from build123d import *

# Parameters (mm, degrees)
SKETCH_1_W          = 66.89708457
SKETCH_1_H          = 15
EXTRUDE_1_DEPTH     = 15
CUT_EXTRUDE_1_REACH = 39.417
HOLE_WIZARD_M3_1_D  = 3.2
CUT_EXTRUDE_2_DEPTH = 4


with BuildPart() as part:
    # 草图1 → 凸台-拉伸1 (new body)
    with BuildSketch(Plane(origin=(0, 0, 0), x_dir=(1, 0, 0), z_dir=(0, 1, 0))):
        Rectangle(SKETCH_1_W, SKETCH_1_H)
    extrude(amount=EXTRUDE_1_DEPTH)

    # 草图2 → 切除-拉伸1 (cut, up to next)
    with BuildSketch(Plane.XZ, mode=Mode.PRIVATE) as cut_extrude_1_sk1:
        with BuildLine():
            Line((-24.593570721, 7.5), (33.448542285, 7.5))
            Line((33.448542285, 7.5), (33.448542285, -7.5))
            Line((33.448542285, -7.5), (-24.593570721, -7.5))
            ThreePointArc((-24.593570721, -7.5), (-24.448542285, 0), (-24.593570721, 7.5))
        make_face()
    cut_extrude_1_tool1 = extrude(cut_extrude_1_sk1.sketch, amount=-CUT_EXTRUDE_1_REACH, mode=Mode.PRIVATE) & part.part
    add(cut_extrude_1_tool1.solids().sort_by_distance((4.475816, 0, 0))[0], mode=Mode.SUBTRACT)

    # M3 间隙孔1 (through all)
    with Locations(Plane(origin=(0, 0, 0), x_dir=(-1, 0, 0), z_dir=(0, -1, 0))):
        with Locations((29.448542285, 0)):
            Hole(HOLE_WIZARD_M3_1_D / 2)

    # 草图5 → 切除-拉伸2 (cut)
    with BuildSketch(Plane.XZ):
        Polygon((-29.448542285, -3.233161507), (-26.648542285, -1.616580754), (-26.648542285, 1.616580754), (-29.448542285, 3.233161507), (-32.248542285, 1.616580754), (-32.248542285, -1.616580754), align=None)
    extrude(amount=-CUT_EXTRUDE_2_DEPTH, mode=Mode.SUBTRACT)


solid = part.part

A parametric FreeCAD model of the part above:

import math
import FreeCAD as App
import Part
import Sketcher
Q = App.Units.Quantity


def add_polygon(sketch, points):
    """Adds a closed chain of lines whose ends are joined by coincident constraints."""
    first, n = sketch.GeometryCount, len(points)
    for a, b in zip(points, points[1:] + points[:1]):
        sketch.addGeometry(Part.LineSegment(App.Vector(*a, 0), App.Vector(*b, 0)), False)
    for i in range(n):
        sketch.addConstraint(Sketcher.Constraint("Coincident", first + i, 2, first + (i + 1) % n, 1))

doc = App.newDocument("Part")
body = doc.addObject("PartDesign::Body", "Body")

# Sketch on XZ plane
sketch1 = body.newObject("Sketcher::SketchObject", "Sketch")
sketch1.AttachmentSupport = (doc.getObject("XZ_Plane"), [""])
sketch1.MapMode = "FlatFace"
add_polygon(sketch1, [(-33, -8), (-33, 8), (33, 8), (33, -8)])  # lines 0-3
sketch1.addConstraint(Sketcher.Constraint("Vertical", 0))
sketch1.addConstraint(Sketcher.Constraint("Horizontal", 1))
sketch1.addConstraint(Sketcher.Constraint("Vertical", 2))
sketch1.addConstraint(Sketcher.Constraint("Horizontal", 3))
sketch1.addConstraint(Sketcher.Constraint("Symmetric", 0, 2, 2, 2, -1, 1))
sketch1.addConstraint(Sketcher.Constraint("DistanceY", 0, 1, 0, 2, 15.0))
sketch1.addConstraint(Sketcher.Constraint("DistanceX", 1, 1, 1, 2, 66.897085))
pad1 = body.newObject("PartDesign::Pad", "Pad")
pad1.Profile = sketch1
pad1.Length = 15
pad1.Reversed = True

# Sketch on XZ plane
sketch2 = body.newObject("Sketcher::SketchObject", "Sketch001")
sketch2.AttachmentSupport = (doc.getObject("XZ_Plane"), [""])
sketch2.MapMode = "FlatFace"
sketch2.addGeometry(Part.LineSegment(App.Vector(33, 8, 0), App.Vector(-25, 8, 0)), False)
sketch2.addGeometry(Part.ArcOfCircle(Part.Circle(App.Vector(-218, 0, 0), App.Vector(0, 0, 1), 194), math.radians(-2.22), math.radians(2.22)), False)
sketch2.addGeometry(Part.LineSegment(App.Vector(-25, -8, 0), App.Vector(33, -8, 0)), False)
sketch2.addGeometry(Part.LineSegment(App.Vector(33, -8, 0), App.Vector(33, 8, 0)), False)
sketch2.addConstraint(Sketcher.Constraint("Coincident", 0, 2, 1, 2))
sketch2.addConstraint(Sketcher.Constraint("Coincident", 1, 1, 2, 1))
sketch2.addConstraint(Sketcher.Constraint("Coincident", 2, 2, 3, 1))
sketch2.addConstraint(Sketcher.Constraint("Coincident", 3, 2, 0, 1))
sketch2.addConstraint(Sketcher.Constraint("Horizontal", 0))
sketch2.addConstraint(Sketcher.Constraint("Horizontal", 2))
sketch2.addConstraint(Sketcher.Constraint("Vertical", 3))
sketch2.addConstraint(Sketcher.Constraint("Symmetric", 0, 2, 1, 1, -1))
sketch2.addConstraint(Sketcher.Constraint("Radius", 1, 194.0))
sketch2.addConstraint(Sketcher.Constraint("DistanceY", 3, 1, 3, 2, 15.0))
sketch2.addConstraint(Sketcher.Constraint("DistanceX", 0, 2, 0, 1, 58.042113))
sketch2.addConstraint(Sketcher.Constraint("DistanceX", 0, 2, -1, 1, 24.593571))
pocket1 = body.newObject("PartDesign::Pocket", "Pocket")
pocket1.Profile = sketch2
pocket1.Type = "UpToFirst"

# Sketch on XZ plane
sketch3 = body.newObject("Sketcher::SketchObject", "Sketch002")
sketch3.AttachmentSupport = (doc.getObject("XZ_Plane"), [""])
sketch3.MapMode = "FlatFace"
sketch3.addGeometry(Part.Circle(App.Vector(-29.4, 0, 0), App.Vector(0, 0, 1), 1.6), False)
sketch3.addConstraint(Sketcher.Constraint("PointOnObject", 0, 3, -1))
sketch3.addConstraint(Sketcher.Constraint("Diameter", 0, 3.2))
sketch3.addConstraint(Sketcher.Constraint("DistanceX", 0, 3, -1, 1, 29.448542))
doc.recompute()
hole = body.newObject("PartDesign::Hole", "Hole")
hole.Profile = sketch3
hole.ThreadType = "None"
hole.Diameter = 3.2
hole.DepthType = "ThroughAll"

# Sketch on XZ plane
sketch4 = body.newObject("Sketcher::SketchObject", "Sketch003")
sketch4.AttachmentSupport = (doc.getObject("XZ_Plane"), [""])
sketch4.MapMode = "FlatFace"
add_polygon(sketch4, [(-29.4, -3.2), (-26.6, -1.6), (-26.6, 1.6), (-29.4, 3.2), (-32.2, 1.6), (-32.2, -1.6)])  # lines 0-5
sketch4.addConstraint(Sketcher.Constraint("Vertical", 1))
sketch4.addConstraint(Sketcher.Constraint("Vertical", 4))
sketch4.addConstraint(Sketcher.Constraint("Symmetric", 2, 2, 5, 2, -1))
sketch4.addConstraint(Sketcher.Constraint("Parallel", 0, 3))
sketch4.addConstraint(Sketcher.Constraint("Parallel", 2, 5))
sketch4.addConstraint(Sketcher.Constraint("Horizontal", 1, 2, 3, 2))
sketch4.addConstraint(Sketcher.Constraint("Horizontal", 0, 2, 4, 2))
sketch4.addConstraint(Sketcher.Constraint("Angle", 0, Q("30 deg")))
sketch4.addConstraint(Sketcher.Constraint("DistanceX", 2, 2, 1, 2, 2.8))
sketch4.addConstraint(Sketcher.Constraint("DistanceY", 1, 1, 1, 2, 3.233162))
sketch4.addConstraint(Sketcher.Constraint("DistanceX", 0, 2, -1, 1, 26.648542))
pocket2 = body.newObject("PartDesign::Pocket", "Pocket001")
pocket2.Profile = sketch4
pocket2.Length = 4

doc.recompute()
